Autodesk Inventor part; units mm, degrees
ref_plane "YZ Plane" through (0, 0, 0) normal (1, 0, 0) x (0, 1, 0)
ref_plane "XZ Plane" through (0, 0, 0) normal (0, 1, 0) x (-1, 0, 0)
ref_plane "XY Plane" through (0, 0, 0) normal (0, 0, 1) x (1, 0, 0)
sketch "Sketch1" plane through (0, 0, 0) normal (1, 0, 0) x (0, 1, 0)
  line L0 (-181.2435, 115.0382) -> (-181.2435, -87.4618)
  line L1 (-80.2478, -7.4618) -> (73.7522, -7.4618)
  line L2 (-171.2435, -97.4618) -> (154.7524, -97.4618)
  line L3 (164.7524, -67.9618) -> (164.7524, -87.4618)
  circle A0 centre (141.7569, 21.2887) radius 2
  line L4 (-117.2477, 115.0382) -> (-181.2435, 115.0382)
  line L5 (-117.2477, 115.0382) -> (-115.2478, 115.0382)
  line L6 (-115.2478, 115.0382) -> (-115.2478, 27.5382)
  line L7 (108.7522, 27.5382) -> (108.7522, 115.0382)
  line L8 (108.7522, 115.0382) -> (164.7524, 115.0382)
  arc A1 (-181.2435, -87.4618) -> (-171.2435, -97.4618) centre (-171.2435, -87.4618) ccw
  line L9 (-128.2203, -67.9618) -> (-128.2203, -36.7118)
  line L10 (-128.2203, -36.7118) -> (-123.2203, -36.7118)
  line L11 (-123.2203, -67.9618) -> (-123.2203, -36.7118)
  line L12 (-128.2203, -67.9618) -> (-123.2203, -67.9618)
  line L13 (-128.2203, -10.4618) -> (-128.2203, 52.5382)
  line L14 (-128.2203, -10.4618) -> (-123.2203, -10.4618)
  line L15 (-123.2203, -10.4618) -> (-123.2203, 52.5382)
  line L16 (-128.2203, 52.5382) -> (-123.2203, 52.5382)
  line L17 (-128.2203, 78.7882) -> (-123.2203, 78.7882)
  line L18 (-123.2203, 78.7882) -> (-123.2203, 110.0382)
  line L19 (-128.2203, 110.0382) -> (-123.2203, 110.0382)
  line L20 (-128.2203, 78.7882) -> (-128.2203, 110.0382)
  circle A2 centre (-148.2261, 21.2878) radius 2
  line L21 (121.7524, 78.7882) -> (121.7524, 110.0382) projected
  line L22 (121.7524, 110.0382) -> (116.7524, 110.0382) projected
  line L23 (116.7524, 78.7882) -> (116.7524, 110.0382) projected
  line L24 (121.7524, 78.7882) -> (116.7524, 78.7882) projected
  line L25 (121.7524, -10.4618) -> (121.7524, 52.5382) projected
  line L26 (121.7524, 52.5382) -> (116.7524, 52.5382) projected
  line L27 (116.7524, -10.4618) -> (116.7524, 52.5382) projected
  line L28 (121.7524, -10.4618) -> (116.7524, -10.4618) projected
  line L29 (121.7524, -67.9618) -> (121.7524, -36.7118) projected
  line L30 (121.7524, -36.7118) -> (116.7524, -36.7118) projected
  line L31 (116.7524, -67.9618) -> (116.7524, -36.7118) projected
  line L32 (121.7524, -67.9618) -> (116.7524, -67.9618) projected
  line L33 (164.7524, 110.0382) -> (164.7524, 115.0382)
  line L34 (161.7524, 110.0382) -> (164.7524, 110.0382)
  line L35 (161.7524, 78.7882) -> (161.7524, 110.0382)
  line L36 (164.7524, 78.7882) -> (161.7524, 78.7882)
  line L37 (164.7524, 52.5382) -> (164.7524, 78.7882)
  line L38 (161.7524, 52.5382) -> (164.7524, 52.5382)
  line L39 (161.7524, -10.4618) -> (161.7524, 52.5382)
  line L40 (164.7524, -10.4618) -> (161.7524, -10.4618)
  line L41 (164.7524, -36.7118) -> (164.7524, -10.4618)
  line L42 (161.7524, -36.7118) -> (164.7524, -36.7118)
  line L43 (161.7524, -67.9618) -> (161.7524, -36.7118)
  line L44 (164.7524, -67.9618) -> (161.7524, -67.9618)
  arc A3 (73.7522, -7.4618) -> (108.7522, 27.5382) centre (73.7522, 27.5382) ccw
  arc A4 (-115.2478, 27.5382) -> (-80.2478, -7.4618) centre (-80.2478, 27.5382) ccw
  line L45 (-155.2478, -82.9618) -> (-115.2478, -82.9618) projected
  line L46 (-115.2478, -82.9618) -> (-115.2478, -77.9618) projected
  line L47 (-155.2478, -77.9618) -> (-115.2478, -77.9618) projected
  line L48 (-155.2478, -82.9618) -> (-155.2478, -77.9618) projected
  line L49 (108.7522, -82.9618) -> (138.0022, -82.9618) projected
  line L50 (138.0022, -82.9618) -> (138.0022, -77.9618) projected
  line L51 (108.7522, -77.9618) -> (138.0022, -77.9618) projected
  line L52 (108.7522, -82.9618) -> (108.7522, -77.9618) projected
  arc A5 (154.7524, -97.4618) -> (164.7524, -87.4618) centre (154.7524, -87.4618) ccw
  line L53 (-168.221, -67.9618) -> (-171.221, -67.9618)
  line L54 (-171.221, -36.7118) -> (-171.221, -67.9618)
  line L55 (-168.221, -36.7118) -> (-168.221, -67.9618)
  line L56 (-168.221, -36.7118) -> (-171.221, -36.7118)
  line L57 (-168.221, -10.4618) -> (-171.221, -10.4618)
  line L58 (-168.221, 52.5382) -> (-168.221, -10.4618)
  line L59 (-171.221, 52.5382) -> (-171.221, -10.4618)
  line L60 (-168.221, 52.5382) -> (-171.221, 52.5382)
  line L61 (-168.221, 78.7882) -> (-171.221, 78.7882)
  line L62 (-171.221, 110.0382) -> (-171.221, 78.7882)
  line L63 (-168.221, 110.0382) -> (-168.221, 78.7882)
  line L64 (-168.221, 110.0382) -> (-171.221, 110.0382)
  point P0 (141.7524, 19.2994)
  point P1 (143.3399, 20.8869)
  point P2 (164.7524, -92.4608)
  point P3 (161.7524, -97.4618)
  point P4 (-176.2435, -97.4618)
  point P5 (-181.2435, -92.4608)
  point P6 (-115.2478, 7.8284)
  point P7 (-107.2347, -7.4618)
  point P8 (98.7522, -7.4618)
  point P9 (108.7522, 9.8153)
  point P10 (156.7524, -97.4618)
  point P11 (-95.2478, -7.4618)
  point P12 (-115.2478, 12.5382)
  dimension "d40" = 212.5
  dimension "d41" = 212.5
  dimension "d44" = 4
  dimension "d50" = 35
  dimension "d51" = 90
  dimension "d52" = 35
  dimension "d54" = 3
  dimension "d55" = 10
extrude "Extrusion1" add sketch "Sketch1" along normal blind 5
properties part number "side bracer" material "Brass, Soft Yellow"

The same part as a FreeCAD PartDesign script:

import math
import FreeCAD as App
import Part
import Sketcher
Q = App.Units.Quantity


def add_polygon(sketch, points):
    """Adds a closed chain of lines whose ends are joined by coincident constraints."""
    first, n = sketch.GeometryCount, len(points)
    for a, b in zip(points, points[1:] + points[:1]):
        sketch.addGeometry(Part.LineSegment(App.Vector(*a, 0), App.Vector(*b, 0)), False)
    for i in range(n):
        sketch.addConstraint(Sketcher.Constraint("Coincident", first + i, 2, first + (i + 1) % n, 1))

doc = App.newDocument("Part")
body = doc.addObject("PartDesign::Body", "Body")

sketch1 = body.newObject("Sketcher::SketchObject", "Sketch")
sketch1.AttachmentSupport = (doc.getObject("YZ_Plane"), [""])
sketch1.MapMode = "FlatFace"
sketch1.addGeometry(Part.LineSegment(App.Vector(-115.2478, 115.0382, 0), App.Vector(-181.2435, 115.0382, 0)), False)
sketch1.addGeometry(Part.LineSegment(App.Vector(-181.2435, 115.0382, 0), App.Vector(-181.2435, -87.4618, 0)), False)
sketch1.addGeometry(Part.ArcOfCircle(Part.Circle(App.Vector(-171.2435, -87.4618, 0), App.Vector(0, 0, 1), 10), math.radians(180), math.radians(270)), False)
sketch1.addGeometry(Part.LineSegment(App.Vector(-171.2435, -97.4618, 0), App.Vector(154.7524, -97.4618, 0)), False)
sketch1.addGeometry(Part.ArcOfCircle(Part.Circle(App.Vector(154.7524, -87.4618, 0), App.Vector(0, 0, 1), 10), math.radians(-90), math.radians(0)), False)
sketch1.addGeometry(Part.LineSegment(App.Vector(164.7524, -87.4618, 0), App.Vector(164.7524, -67.9618, 0)), False)
sketch1.addGeometry(Part.LineSegment(App.Vector(164.7524, -67.9618, 0), App.Vector(161.7524, -67.9618, 0)), False)
sketch1.addGeometry(Part.LineSegment(App.Vector(161.7524, -67.9618, 0), App.Vector(161.7524, -36.7118, 0)), False)
sketch1.addGeometry(Part.LineSegment(App.Vector(161.7524, -36.7118, 0), App.Vector(164.7524, -36.7118, 0)), False)
sketch1.addGeometry(Part.LineSegment(App.Vector(164.7524, -36.7118, 0), App.Vector(164.7524, -10.4618, 0)), False)
sketch1.addGeometry(Part.LineSegment(App.Vector(164.7524, -10.4618, 0), App.Vector(161.7524, -10.4618, 0)), False)
sketch1.addGeometry(Part.LineSegment(App.Vector(161.7524, -10.4618, 0), App.Vector(161.7524, 52.5382, 0)), False)
sketch1.addGeometry(Part.LineSegment(App.Vector(161.7524, 52.5382, 0), App.Vector(164.7524, 52.5382, 0)), False)
sketch1.addGeometry(Part.LineSegment(App.Vector(164.7524, 52.5382, 0), App.Vector(164.7524, 78.7882, 0)), False)
sketch1.addGeometry(Part.LineSegment(App.Vector(164.7524, 78.7882, 0), App.Vector(161.7524, 78.7882, 0)), False)
sketch1.addGeometry(Part.LineSegment(App.Vector(161.7524, 78.7882, 0), App.Vector(161.7524, 110.0382, 0)), False)
sketch1.addGeometry(Part.LineSegment(App.Vector(161.7524, 110.0382, 0), App.Vector(164.7524, 110.0382, 0)), False)
sketch1.addGeometry(Part.LineSegment(App.Vector(164.7524, 110.0382, 0), App.Vector(164.7524, 115.0382, 0)), False)
sketch1.addGeometry(Part.LineSegment(App.Vector(164.7524, 115.0382, 0), App.Vector(108.7522, 115.0382, 0)), False)
sketch1.addGeometry(Part.LineSegment(App.Vector(108.7522, 115.0382, 0), App.Vector(108.7522, 27.5382, 0)), False)
sketch1.addGeometry(Part.ArcOfCircle(Part.Circle(App.Vector(73.7522, 27.5382, 0), App.Vector(0, 0, 1), 35), math.radians(-90), math.radians(0)), False)
sketch1.addGeometry(Part.LineSegment(App.Vector(73.7522, -7.4618, 0), App.Vector(-80.2478, -7.4618, 0)), False)
sketch1.addGeometry(Part.ArcOfCircle(Part.Circle(App.Vector(-80.2478, 27.5382, 0), App.Vector(0, 0, 1), 35), math.radians(180), math.radians(270)), False)
sketch1.addGeometry(Part.LineSegment(App.Vector(-115.2478, 27.5382, 0), App.Vector(-115.2478, 115.0382, 0)), False)
add_polygon(sketch1, [(-115.2478, -82.9618), (-155.2478, -82.9618), (-155.2478, -77.9618), (-115.2478, -77.9618)])
add_polygon(sketch1, [(-168.221, -36.7118), (-168.221, -67.9618), (-171.221, -67.9618), (-171.221, -36.7118)])
add_polygon(sketch1, [(-123.2203, -67.9618), (-128.2203, -67.9618), (-128.2203, -36.7118), (-123.2203, -36.7118)])
add_polygon(sketch1, [(138.0022, -82.9618), (108.7522, -82.9618), (108.7522, -77.9618), (138.0022, -77.9618)])
add_polygon(sketch1, [(121.7524, -36.7118), (121.7524, -67.9618), (116.7524, -67.9618), (116.7524, -36.7118)])
add_polygon(sketch1, [(-168.221, 52.5382), (-168.221, -10.4618), (-171.221, -10.4618), (-171.221, 52.5382)])
sketch1.addGeometry(Part.Circle(App.Vector(-148.2261, 21.2878, 0), App.Vector(0, 0, 1), 2), False)
add_polygon(sketch1, [(-123.2203, -10.4618), (-128.2203, -10.4618), (-128.2203, 52.5382), (-123.2203, 52.5382)])
add_polygon(sketch1, [(-168.221, 110.0382), (-168.221, 78.7882), (-171.221, 78.7882), (-171.221, 110.0382)])
add_polygon(sketch1, [(-123.2203, 78.7882), (-128.2203, 78.7882), (-128.2203, 110.0382), (-123.2203, 110.0382)])
add_polygon(sketch1, [(121.7524, 52.5382), (121.7524, -10.4618), (116.7524, -10.4618), (116.7524, 52.5382)])
sketch1.addGeometry(Part.Circle(App.Vector(141.7569, 21.2887, 0), App.Vector(0, 0, 1), 2), False)
add_polygon(sketch1, [(121.7524, 110.0382), (121.7524, 78.7882), (116.7524, 78.7882), (116.7524, 110.0382)])
sketch1.addConstraint([
    Sketcher.Constraint("Coincident", 0, 2, 1, 1),
    Sketcher.Constraint("Tangent", 1, 2, 2, 1),
    Sketcher.Constraint("Tangent", 2, 2, 3, 1),
    Sketcher.Constraint("Tangent", 3, 2, 4, 1),
    Sketcher.Constraint("Tangent", 4, 2, 5, 1),
    Sketcher.Constraint("Coincident", 5, 2, 6, 1),
    Sketcher.Constraint("Coincident", 6, 2, 7, 1),
    Sketcher.Constraint("Coincident", 7, 2, 8, 1),
    Sketcher.Constraint("Coincident", 8, 2, 9, 1),
    Sketcher.Constraint("Coincident", 9, 2, 10, 1),
    Sketcher.Constraint("Coincident", 10, 2, 11, 1),
    Sketcher.Constraint("Coincident", 11, 2, 12, 1),
    Sketcher.Constraint("Coincident", 12, 2, 13, 1),
    Sketcher.Constraint("Coincident", 13, 2, 14, 1),
    Sketcher.Constraint("Coincident", 14, 2, 15, 1),
    Sketcher.Constraint("Coincident", 15, 2, 16, 1),
    Sketcher.Constraint("Coincident", 16, 2, 17, 1),
    Sketcher.Constraint("Coincident", 17, 2, 18, 1),
    Sketcher.Constraint("Coincident", 18, 2, 19, 1),
    Sketcher.Constraint("Tangent", 19, 2, 20, 2),
    Sketcher.Constraint("Tangent", 20, 1, 21, 1),
    Sketcher.Constraint("Tangent", 21, 2, 22, 2),
    Sketcher.Constraint("Tangent", 22, 1, 23, 1),
    Sketcher.Constraint("Coincident", 23, 2, 0, 1),
    Sketcher.Constraint("Horizontal", 0),
    Sketcher.Constraint("Vertical", 1),
    Sketcher.Constraint("Horizontal", 3),
    Sketcher.Constraint("Vertical", 5),
    Sketcher.Constraint("Horizontal", 6),
    Sketcher.Constraint("Vertical", 7),
    Sketcher.Constraint("Horizontal", 8),
    Sketcher.Constraint("Vertical", 9),
    Sketcher.Constraint("Horizontal", 10),
    Sketcher.Constraint("Vertical", 11),
    Sketcher.Constraint("Horizontal", 12),
    Sketcher.Constraint("Vertical", 13),
    Sketcher.Constraint("Horizontal", 14),
    Sketcher.Constraint("Vertical", 15),
    Sketcher.Constraint("Horizontal", 16),
    Sketcher.Constraint("Vertical", 17),
    Sketcher.Constraint("Horizontal", 18),
    Sketcher.Constraint("Vertical", 19),
    Sketcher.Constraint("Horizontal", 21),
    Sketcher.Constraint("Vertical", 23),
    Sketcher.Constraint("Horizontal", 24),
    Sketcher.Constraint("Vertical", 25),
    Sketcher.Constraint("Horizontal", 26),
    Sketcher.Constraint("Vertical", 27),
    Sketcher.Constraint("Vertical", 28),
    Sketcher.Constraint("Horizontal", 29),
    Sketcher.Constraint("Vertical", 30),
    Sketcher.Constraint("Horizontal", 31),
    Sketcher.Constraint("Horizontal", 32),
    Sketcher.Constraint("Vertical", 33),
    Sketcher.Constraint("Horizontal", 34),
    Sketcher.Constraint("Vertical", 35),
    Sketcher.Constraint("Horizontal", 36),
    Sketcher.Constraint("Vertical", 37),
    Sketcher.Constraint("Horizontal", 38),
    Sketcher.Constraint("Vertical", 39),
    Sketcher.Constraint("Vertical", 40),
    Sketcher.Constraint("Horizontal", 41),
    Sketcher.Constraint("Vertical", 42),
    Sketcher.Constraint("Horizontal", 43),
    Sketcher.Constraint("Vertical", 44),
    Sketcher.Constraint("Horizontal", 45),
    Sketcher.Constraint("Vertical", 46),
    Sketcher.Constraint("Horizontal", 47),
    Sketcher.Constraint("Horizontal", 49),
    Sketcher.Constraint("Vertical", 50),
    Sketcher.Constraint("Horizontal", 51),
    Sketcher.Constraint("Vertical", 52),
    Sketcher.Constraint("Vertical", 53),
    Sketcher.Constraint("Horizontal", 54),
    Sketcher.Constraint("Vertical", 55),
    Sketcher.Constraint("Horizontal", 56),
    Sketcher.Constraint("Horizontal", 57),
    Sketcher.Constraint("Vertical", 58),
    Sketcher.Constraint("Horizontal", 59),
    Sketcher.Constraint("Vertical", 60),
    Sketcher.Constraint("Vertical", 61),
    Sketcher.Constraint("Horizontal", 62),
    Sketcher.Constraint("Vertical", 63),
    Sketcher.Constraint("Horizontal", 64),
    Sketcher.Constraint("Vertical", 66),
    Sketcher.Constraint("Horizontal", 67),
    Sketcher.Constraint("Vertical", 68),
    Sketcher.Constraint("Horizontal", 69),
    Sketcher.Constraint("Equal", 2, 4),
    Sketcher.Constraint("Equal", 20, 22),
    Sketcher.Constraint("Equal", 48, 65),
    Sketcher.Constraint("Horizontal", 0, 2, 17, 2),
    Sketcher.Constraint("Horizontal", 6, 2, 28, 2),
    Sketcher.Constraint("Horizontal", 8, 2, 30, 2),
    Sketcher.Constraint("Horizontal", 29, 2, 32, 2),
    Sketcher.Constraint("Horizontal", 31, 2, 33, 2),
    Sketcher.Constraint("Horizontal", 27, 2, 36, 2),
    Sketcher.Constraint("Horizontal", 26, 2, 37, 2),
    Sketcher.Constraint("Horizontal", 35, 2, 40, 2),
    Sketcher.Constraint("Horizontal", 34, 2, 42, 2),
    Sketcher.Constraint("Horizontal", 10, 2, 44, 2),
    Sketcher.Constraint("Horizontal", 12, 2, 46, 2),
    Sketcher.Constraint("Horizontal", 45, 2, 49, 2),
    Sketcher.Constraint("Horizontal", 47, 2, 50, 2),
    Sketcher.Constraint("Horizontal", 14, 2, 53, 2),
    Sketcher.Constraint("Horizontal", 16, 2, 55, 2),
    Sketcher.Constraint("Horizontal", 54, 2, 57, 2),
    Sketcher.Constraint("Horizontal", 56, 2, 58, 2),
    Sketcher.Constraint("Horizontal", 52, 2, 61, 2),
    Sketcher.Constraint("Horizontal", 51, 2, 63, 2),
    Sketcher.Constraint("Horizontal", 60, 2, 66, 2),
    Sketcher.Constraint("Horizontal", 59, 2, 68, 2),
    Sketcher.Constraint("Vertical", 5, 2, 8, 2),
    Sketcher.Constraint("Vertical", 7, 2, 10, 2),
    Sketcher.Constraint("Vertical", 9, 2, 12, 2),
    Sketcher.Constraint("Vertical", 11, 2, 14, 2),
    Sketcher.Constraint("Vertical", 13, 2, 16, 2),
    Sketcher.Constraint("Vertical", 23, 2, 26, 2),
    Sketcher.Constraint("Vertical", 19, 2, 36, 2),
    Sketcher.Constraint("Vertical", 31, 2, 44, 2),
    Sketcher.Constraint("Vertical", 30, 2, 45, 2),
    Sketcher.Constraint("Vertical", 33, 2, 49, 2),
    Sketcher.Constraint("Vertical", 35, 2, 51, 2),
    Sketcher.Constraint("Vertical", 47, 2, 53, 2),
    Sketcher.Constraint("Vertical", 46, 2, 54, 2),
    Sketcher.Constraint("Vertical", 50, 2, 57, 2),
    Sketcher.Constraint("Vertical", 52, 2, 59, 2),
    Sketcher.Constraint("Vertical", 43, 2, 61, 2),
    Sketcher.Constraint("Vertical", 42, 2, 62, 2),
    Sketcher.Constraint("Vertical", 64, 2, 66, 2),
    Sketcher.Constraint("Vertical", 63, 2, 67, 2),
    Sketcher.Constraint("Equal", 16, 29),
    Sketcher.Constraint("Equal", 34, 41),
    Sketcher.Constraint("Equal", 9, 13),
    Sketcher.Constraint("Equal", 7, 15),
    Sketcher.Constraint("Equal", 69, 17),
    Sketcher.Constraint("Equal", 17, 25),
    Sketcher.Constraint("Diameter", 48, Q("4 mm")),
    Sketcher.Constraint("Radius", 2, Q("10 mm")),
    Sketcher.Constraint("Radius", 20, Q("35 mm")),
    Sketcher.Constraint("DistanceX", 6, 2, 6, 1, Q("3 mm")),
    Sketcher.Constraint("DistanceX", 21, 2, 21, 1, Q("154 mm")),
    Sketcher.Constraint("DistanceX", 24, 2, 24, 1, Q("40 mm")),
    Sketcher.Constraint("DistanceX", 32, 2, 32, 1, Q("5 mm")),
    Sketcher.Constraint("DistanceY", 11, 1, 11, 2, Q("63 mm")),
    Sketcher.Constraint("DistanceY", 1, 2, 1, 1, Q("202.5 mm")),
    Sketcher.Constraint("DistanceY", 5, 1, 5, 2, Q("19.5 mm")),
    Sketcher.Constraint("DistanceY", 19, 2, 19, 1, Q("87.5 mm")),
    Sketcher.Constraint("DistanceX", 36, 2, 36, 1, Q("29.25 mm")),
    Sketcher.Constraint("DistanceY", 7, 1, 7, 2, Q("31.25 mm")),
    Sketcher.Constraint("DistanceX", 3, 1, 3, 2, Q("325.996 mm")),
    Sketcher.Constraint("DistanceX", 0, 2, 0, 1, Q("65.9957 mm")),
    Sketcher.Constraint("DistanceX", 48, 3, -1, 1, Q("148.226 mm")),
    Sketcher.Constraint("DistanceX", -1, 1, 65, 3, Q("141.757 mm")),
    Sketcher.Constraint("DistanceX", 28, 2, -1, 1, Q("168.221 mm")),
    Sketcher.Constraint("DistanceX", 2, 3, -1, 1, Q("171.2435 mm")),
    Sketcher.Constraint("DistanceY", 2, 3, -1, 1, Q("87.4618 mm")),
    Sketcher.Constraint("DistanceY", -1, 1, 48, 3, Q("21.2878 mm")),
    Sketcher.Constraint("DistanceY", -1, 1, 65, 3, Q("21.2887 mm")),
    Sketcher.Constraint("DistanceY", 24, 2, -1, 1, Q("82.9618 mm")),
    Sketcher.Constraint("DistanceX", 32, 2, -1, 1, Q("128.2203 mm")),
    Sketcher.Constraint("DistanceX", -1, 1, 40, 2, Q("121.7524 mm")),
])
pad1 = body.newObject("PartDesign::Pad", "Pad")
pad1.Profile = sketch1
pad1.Length = 5

doc.recompute()
